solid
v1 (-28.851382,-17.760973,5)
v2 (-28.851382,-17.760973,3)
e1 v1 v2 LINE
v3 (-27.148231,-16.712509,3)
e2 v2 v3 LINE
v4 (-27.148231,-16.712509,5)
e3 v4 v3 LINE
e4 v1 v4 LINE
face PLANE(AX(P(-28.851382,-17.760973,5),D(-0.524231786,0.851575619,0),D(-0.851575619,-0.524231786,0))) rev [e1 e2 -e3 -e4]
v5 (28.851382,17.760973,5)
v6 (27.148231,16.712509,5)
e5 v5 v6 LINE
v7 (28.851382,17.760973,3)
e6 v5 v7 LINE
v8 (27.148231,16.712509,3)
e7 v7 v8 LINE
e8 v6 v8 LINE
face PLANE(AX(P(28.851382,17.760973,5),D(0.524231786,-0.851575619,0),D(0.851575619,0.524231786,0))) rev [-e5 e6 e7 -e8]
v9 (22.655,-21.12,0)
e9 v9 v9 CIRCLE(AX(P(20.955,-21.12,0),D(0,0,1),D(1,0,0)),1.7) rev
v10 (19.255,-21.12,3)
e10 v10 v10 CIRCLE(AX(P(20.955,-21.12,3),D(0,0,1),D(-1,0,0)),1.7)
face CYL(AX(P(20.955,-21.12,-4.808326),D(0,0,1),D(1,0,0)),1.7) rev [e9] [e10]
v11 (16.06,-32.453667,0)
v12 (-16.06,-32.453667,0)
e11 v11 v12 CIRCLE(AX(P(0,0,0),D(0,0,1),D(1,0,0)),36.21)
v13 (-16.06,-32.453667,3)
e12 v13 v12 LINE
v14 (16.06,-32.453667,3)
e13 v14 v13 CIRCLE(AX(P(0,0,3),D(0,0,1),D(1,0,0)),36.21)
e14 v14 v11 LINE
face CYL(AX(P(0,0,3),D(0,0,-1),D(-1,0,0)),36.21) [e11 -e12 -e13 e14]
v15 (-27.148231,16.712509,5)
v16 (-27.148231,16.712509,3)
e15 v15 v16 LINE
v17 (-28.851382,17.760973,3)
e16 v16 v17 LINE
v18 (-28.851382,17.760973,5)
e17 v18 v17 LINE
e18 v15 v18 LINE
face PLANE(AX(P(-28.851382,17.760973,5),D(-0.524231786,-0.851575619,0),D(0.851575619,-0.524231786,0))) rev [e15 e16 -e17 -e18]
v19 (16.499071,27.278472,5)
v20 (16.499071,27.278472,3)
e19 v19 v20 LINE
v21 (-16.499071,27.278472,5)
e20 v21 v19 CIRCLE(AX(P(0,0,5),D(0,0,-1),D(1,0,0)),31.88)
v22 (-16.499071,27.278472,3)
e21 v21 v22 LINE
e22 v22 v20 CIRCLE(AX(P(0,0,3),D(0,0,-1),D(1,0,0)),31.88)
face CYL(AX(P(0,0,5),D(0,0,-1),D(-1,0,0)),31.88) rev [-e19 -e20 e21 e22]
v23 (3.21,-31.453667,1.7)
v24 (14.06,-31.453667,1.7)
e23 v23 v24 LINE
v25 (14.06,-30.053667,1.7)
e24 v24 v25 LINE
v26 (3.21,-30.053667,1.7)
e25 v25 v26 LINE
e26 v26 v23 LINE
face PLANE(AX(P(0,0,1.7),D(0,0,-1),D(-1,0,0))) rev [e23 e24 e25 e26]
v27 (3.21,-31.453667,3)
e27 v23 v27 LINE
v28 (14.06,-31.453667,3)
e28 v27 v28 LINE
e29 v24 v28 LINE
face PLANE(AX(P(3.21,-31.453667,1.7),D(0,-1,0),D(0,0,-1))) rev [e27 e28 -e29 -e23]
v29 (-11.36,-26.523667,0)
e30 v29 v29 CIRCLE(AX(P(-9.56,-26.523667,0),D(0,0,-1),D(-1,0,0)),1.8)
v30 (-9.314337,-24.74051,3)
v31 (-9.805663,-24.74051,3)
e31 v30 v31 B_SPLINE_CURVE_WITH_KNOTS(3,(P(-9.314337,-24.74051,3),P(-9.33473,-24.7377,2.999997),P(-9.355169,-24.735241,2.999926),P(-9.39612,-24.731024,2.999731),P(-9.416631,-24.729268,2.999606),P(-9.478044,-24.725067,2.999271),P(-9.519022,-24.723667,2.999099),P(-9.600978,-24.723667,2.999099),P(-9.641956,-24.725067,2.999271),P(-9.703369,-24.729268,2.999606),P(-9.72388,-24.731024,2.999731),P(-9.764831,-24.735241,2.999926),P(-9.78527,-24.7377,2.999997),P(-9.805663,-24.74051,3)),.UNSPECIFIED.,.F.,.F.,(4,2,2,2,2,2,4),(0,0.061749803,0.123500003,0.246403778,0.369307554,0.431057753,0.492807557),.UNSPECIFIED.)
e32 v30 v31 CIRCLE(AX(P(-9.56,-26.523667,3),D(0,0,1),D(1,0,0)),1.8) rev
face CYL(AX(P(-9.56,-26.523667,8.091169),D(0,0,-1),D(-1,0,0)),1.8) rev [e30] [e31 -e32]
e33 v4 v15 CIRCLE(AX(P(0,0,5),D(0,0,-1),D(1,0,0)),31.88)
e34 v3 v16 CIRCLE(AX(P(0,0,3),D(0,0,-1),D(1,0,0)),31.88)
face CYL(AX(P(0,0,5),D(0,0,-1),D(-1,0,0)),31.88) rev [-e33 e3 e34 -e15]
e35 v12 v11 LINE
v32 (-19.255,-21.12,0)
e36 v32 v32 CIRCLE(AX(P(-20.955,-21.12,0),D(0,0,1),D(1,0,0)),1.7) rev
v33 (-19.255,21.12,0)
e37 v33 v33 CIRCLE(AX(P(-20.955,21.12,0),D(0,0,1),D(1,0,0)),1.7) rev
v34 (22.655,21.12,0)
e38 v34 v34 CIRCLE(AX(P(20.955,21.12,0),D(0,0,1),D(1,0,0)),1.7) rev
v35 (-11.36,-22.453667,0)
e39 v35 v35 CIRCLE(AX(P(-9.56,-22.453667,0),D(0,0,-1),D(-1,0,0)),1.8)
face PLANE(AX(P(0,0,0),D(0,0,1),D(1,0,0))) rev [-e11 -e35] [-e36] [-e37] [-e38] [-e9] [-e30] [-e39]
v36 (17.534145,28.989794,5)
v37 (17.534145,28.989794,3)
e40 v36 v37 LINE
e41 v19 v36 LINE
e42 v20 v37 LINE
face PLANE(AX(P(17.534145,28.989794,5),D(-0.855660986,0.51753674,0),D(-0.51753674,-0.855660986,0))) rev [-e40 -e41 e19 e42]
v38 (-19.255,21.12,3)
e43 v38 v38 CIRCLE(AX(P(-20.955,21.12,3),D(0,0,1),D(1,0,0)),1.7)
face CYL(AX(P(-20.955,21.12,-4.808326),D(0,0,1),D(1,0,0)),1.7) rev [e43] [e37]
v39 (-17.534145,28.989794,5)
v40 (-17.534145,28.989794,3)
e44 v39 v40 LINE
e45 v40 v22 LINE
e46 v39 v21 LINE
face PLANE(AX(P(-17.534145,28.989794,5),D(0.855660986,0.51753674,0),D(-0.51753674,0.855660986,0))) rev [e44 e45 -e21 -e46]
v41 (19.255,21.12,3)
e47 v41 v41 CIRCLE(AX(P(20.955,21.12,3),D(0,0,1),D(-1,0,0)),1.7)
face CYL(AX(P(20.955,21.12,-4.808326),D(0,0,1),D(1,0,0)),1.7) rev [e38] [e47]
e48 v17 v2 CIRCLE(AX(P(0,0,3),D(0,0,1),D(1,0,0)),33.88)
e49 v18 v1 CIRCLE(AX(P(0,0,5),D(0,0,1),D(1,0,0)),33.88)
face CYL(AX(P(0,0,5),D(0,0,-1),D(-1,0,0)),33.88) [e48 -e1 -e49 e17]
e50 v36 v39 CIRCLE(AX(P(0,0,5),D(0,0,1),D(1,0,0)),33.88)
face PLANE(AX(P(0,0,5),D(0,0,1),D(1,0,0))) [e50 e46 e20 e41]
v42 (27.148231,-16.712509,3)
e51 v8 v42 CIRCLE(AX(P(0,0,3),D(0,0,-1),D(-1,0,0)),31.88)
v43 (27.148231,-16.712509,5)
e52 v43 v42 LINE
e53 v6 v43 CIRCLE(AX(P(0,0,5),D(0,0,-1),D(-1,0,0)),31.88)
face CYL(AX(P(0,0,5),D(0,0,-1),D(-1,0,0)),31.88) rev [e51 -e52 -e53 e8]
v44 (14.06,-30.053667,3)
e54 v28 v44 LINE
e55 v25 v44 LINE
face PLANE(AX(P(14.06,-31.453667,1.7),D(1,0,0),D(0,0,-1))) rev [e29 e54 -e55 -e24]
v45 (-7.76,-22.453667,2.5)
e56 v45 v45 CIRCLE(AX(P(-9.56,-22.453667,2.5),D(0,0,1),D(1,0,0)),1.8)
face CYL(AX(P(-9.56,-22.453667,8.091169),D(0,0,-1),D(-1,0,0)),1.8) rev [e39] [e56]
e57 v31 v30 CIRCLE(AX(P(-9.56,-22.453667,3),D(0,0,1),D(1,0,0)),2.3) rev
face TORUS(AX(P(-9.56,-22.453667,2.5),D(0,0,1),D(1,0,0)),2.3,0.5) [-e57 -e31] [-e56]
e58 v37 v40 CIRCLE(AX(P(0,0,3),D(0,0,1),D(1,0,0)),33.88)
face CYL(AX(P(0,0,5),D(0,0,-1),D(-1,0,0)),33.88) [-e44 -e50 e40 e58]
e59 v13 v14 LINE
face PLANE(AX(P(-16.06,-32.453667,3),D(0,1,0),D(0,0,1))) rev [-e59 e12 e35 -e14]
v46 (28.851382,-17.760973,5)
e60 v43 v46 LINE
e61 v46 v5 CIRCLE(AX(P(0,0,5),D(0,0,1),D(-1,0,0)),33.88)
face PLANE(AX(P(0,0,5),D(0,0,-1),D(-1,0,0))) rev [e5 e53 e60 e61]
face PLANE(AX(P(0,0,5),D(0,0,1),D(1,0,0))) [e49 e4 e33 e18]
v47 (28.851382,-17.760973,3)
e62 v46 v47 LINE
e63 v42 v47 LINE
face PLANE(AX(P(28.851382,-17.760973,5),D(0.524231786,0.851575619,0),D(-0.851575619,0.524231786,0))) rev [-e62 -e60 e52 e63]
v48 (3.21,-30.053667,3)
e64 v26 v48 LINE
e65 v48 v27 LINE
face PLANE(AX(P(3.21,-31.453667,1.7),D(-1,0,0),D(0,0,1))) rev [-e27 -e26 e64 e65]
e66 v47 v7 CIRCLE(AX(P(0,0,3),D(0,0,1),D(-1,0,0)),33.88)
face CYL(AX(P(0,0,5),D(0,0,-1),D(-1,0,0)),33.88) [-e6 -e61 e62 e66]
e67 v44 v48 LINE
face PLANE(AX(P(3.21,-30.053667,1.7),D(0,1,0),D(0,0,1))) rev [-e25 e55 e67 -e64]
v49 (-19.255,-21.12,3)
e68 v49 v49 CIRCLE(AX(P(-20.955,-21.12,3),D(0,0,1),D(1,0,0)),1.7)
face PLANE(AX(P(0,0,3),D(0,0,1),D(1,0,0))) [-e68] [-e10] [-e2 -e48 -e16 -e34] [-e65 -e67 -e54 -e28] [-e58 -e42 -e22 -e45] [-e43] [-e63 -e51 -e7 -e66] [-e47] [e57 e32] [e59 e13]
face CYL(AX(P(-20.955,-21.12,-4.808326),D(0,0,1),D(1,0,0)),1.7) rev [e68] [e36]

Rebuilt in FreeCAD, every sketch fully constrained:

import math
import FreeCAD as App
import Part
import Sketcher
Q = App.Units.Quantity


def edges_at(feature, points):
    """Names of the edges that pass closest to the given points."""
    edges = feature.Shape.Edges
    near = lambda p: min(range(len(edges)), key=lambda i: edges[i].distToShape(Part.Vertex(*p))[0])
    return sorted({f"Edge{near(p) + 1}" for p in points})


def add_polygon(sketch, points):
    """Adds a closed chain of lines whose ends are joined by coincident constraints."""
    first, n = sketch.GeometryCount, len(points)
    for a, b in zip(points, points[1:] + points[:1]):
        sketch.addGeometry(Part.LineSegment(App.Vector(*a, 0), App.Vector(*b, 0)), False)
    for i in range(n):
        sketch.addConstraint(Sketcher.Constraint("Coincident", first + i, 2, first + (i + 1) % n, 1))

doc = App.newDocument("Part")
body = doc.addObject("PartDesign::Body", "Body")

# Sketch on XY plane
sketch1 = body.newObject("Sketcher::SketchObject", "Sketch")
sketch1.AttachmentSupport = (doc.getObject("XY_Plane"), [""])
sketch1.MapMode = "FlatFace"
sketch1.addGeometry([
    Part.LineSegment(App.Vector(-16.06, -32.453667, 0), App.Vector(16.06, -32.453667, 0)),
    Part.ArcOfCircle(Part.Circle(App.Vector(0, 0, 0), App.Vector(0, 0, 1), 36.21), math.radians(-63.671064), math.radians(243.671064)),
], False)
sketch1.addConstraint([
    Sketcher.Constraint("Coincident", 0, 1, 1, 2),
    Sketcher.Constraint("Coincident", 1, 1, 0, 2),
    Sketcher.Constraint("Horizontal", 0),
    Sketcher.Constraint("Coincident", 1, 3, -1, 1),
    Sketcher.Constraint("Radius", 1, Q("36.21 mm")),
    Sketcher.Constraint("DistanceX", 0, 1, 0, 2, Q("32.12 mm")),
])
pad1 = body.newObject("PartDesign::Pad", "Pad")
pad1.Profile = sketch1
pad1.Length = 3

# Sketch on XY plane
sketch2 = body.newObject("Sketcher::SketchObject", "Sketch001")
sketch2.AttachmentSupport = (doc.getObject("XY_Plane"), [""])
sketch2.MapMode = "FlatFace"
sketch2.AttachmentOffset = App.Placement(App.Vector(0, 0, 3), App.Rotation())
sketch2.addGeometry([
    Part.Circle(App.Vector(-20.955, 21.12, 0), App.Vector(0, 0, 1), 1.7),
    Part.Circle(App.Vector(20.955, 21.12, 0), App.Vector(0, 0, 1), 1.7),
    Part.Circle(App.Vector(-20.955, -21.12, 0), App.Vector(0, 0, 1), 1.7),
    Part.Circle(App.Vector(20.955, -21.12, 0), App.Vector(0, 0, 1), 1.7),
], False)
sketch2.addConstraint([
    Sketcher.Constraint("Equal", 0, 1),
    Sketcher.Constraint("Equal", 1, 2),
    Sketcher.Constraint("Equal", 2, 3),
    Sketcher.Constraint("Symmetric", 1, 3, 2, 3, -1, 1),
    Sketcher.Constraint("Symmetric", 0, 3, 3, 3, -1, 1),
    Sketcher.Constraint("Symmetric", 0, 3, 1, 3, -2),
    Sketcher.Constraint("Diameter", 0, Q("3.4 mm")),
    Sketcher.Constraint("DistanceY", -1, 1, 0, 3, Q("21.12 mm")),
    Sketcher.Constraint("DistanceX", 0, 3, 1, 3, Q("41.91 mm")),
])
pocket1 = body.newObject("PartDesign::Pocket", "Pocket")
pocket1.Profile = sketch2
pocket1.Length = 3

# Sketch on XY plane
sketch3 = body.newObject("Sketcher::SketchObject", "Sketch002")
sketch3.AttachmentSupport = (doc.getObject("XY_Plane"), [""])
sketch3.MapMode = "FlatFace"
sketch3.AttachmentOffset = App.Placement(App.Vector(0, 0, 3), App.Rotation())
sketch3.addGeometry([
    Part.LineSegment(App.Vector(-17.534145, 28.989794, 0), App.Vector(-16.499071, 27.278472, 0)),  # 0
    Part.ArcOfCircle(Part.Circle(App.Vector(0, 0, 0), App.Vector(0, 0, 1), 31.88), math.radians(58.832835), math.radians(121.167165)),  # 1
    Part.LineSegment(App.Vector(16.499071, 27.278472, 0), App.Vector(17.534145, 28.989794, 0)),  # 2
    Part.ArcOfCircle(Part.Circle(App.Vector(0, 0, 0), App.Vector(0, 0, 1), 33.88), math.radians(58.832835), math.radians(121.167165)),  # 3
    Part.LineSegment(App.Vector(-27.148231, 16.712509, 0), App.Vector(-28.851382, 17.760973, 0)),  # 4
    Part.ArcOfCircle(Part.Circle(App.Vector(0, 0, 0), App.Vector(0, 0, 1), 33.88), math.radians(148.383458), math.radians(211.616542)),  # 5
    Part.LineSegment(App.Vector(-28.851382, -17.760973, 0), App.Vector(-27.148231, -16.712509, 0)),  # 6
    Part.ArcOfCircle(Part.Circle(App.Vector(0, 0, 0), App.Vector(0, 0, 1), 31.88), math.radians(148.383458), math.radians(211.616542)),  # 7
    Part.LineSegment(App.Vector(28.851382, 17.760973, 0), App.Vector(27.148231, 16.712509, 0)),  # 8
    Part.ArcOfCircle(Part.Circle(App.Vector(0, 0, 0), App.Vector(0, 0, 1), 31.88), math.radians(-31.616542), math.radians(31.616542)),  # 9
    Part.LineSegment(App.Vector(27.148231, -16.712509, 0), App.Vector(28.851382, -17.760973, 0)),  # 10
    Part.ArcOfCircle(Part.Circle(App.Vector(0, 0, 0), App.Vector(0, 0, 1), 33.88), math.radians(-31.616542), math.radians(31.616542)),  # 11
], False)
sketch3.addConstraint([
    Sketcher.Constraint("Coincident", 0, 2, 1, 2),
    Sketcher.Constraint("Coincident", 1, 1, 2, 1),
    Sketcher.Constraint("Coincident", 2, 2, 3, 1),
    Sketcher.Constraint("Coincident", 3, 2, 0, 1),
    Sketcher.Constraint("Coincident", 4, 2, 5, 1),
    Sketcher.Constraint("Coincident", 5, 2, 6, 1),
    Sketcher.Constraint("Coincident", 6, 2, 7, 2),
    Sketcher.Constraint("Coincident", 7, 1, 4, 1),
    Sketcher.Constraint("Coincident", 8, 2, 9, 2),
    Sketcher.Constraint("Coincident", 9, 1, 10, 1),
    Sketcher.Constraint("Coincident", 10, 2, 11, 1),
    Sketcher.Constraint("Coincident", 11, 2, 8, 1),
    Sketcher.Constraint("Coincident", 1, 3, -1, 1),
    Sketcher.Constraint("Coincident", 3, 3, -1, 1),
    Sketcher.Constraint("Coincident", 5, 3, -1, 1),
    Sketcher.Constraint("Coincident", 7, 3, -1, 1),
    Sketcher.Constraint("Coincident", 9, 3, -1, 1),
    Sketcher.Constraint("Coincident", 11, 3, -1, 1),
    Sketcher.Constraint("Equal", 3, 5),
    Sketcher.Constraint("Equal", 1, 7),
    Sketcher.Constraint("Equal", 7, 9),
    Sketcher.Constraint("Equal", 5, 11),
    Sketcher.Constraint("Parallel", 6, 8),
    Sketcher.Constraint("Parallel", 4, 10),
    Sketcher.Constraint("Horizontal", 0, 2, 1, 1),
    Sketcher.Constraint("Horizontal", 2, 2, 3, 2),
    Sketcher.Constraint("Horizontal", 7, 1, 8, 2),
    Sketcher.Constraint("Horizontal", 6, 2, 9, 1),
    Sketcher.Constraint("Horizontal", 5, 2, 10, 2),
    Sketcher.Constraint("Vertical", 4, 2, 5, 2),
    Sketcher.Constraint("Radius", 1, Q("31.88 mm")),
    Sketcher.Constraint("Radius", 3, Q("33.88 mm")),
    Sketcher.Constraint("DistanceY", 4, 2, 0, 2, Q("9.517499 mm")),
    Sketcher.Constraint("DistanceX", 0, 2, -1, 1, Q("16.499071 mm")),
    Sketcher.Constraint("DistanceX", 6, 2, -1, 1, Q("27.148231 mm")),
    Sketcher.Constraint("DistanceY", 1, 1, 2, 2, Q("1.711322 mm")),
])
pad2 = body.newObject("PartDesign::Pad", "Pad001")
pad2.Profile = sketch3
pad2.Length = 2

# Sketch on XY plane
sketch4 = body.newObject("Sketcher::SketchObject", "Sketch003")
sketch4.AttachmentSupport = (doc.getObject("XY_Plane"), [""])
sketch4.MapMode = "FlatFace"
sketch4.addGeometry([
    Part.Circle(App.Vector(-9.56, -22.453667, 0), App.Vector(0, 0, 1), 1.8),
    Part.Circle(App.Vector(-9.56, -26.523667, 0), App.Vector(0, 0, 1), 1.8),
], False)
sketch4.addConstraint([
    Sketcher.Constraint("Equal", 0, 1),
    Sketcher.Constraint("Vertical", 0, 3, 1, 3),
    Sketcher.Constraint("Diameter", 0, Q("3.6 mm")),
    Sketcher.Constraint("DistanceX", 0, 3, -1, 1, Q("9.56 mm")),
    Sketcher.Constraint("DistanceY", 1, 3, 0, 3, Q("4.07 mm")),
    Sketcher.Constraint("DistanceY", 0, 3, -1, 1, Q("22.453667 mm")),
])
pocket2 = body.newObject("PartDesign::Pocket", "Pocket001")
pocket2.Profile = sketch4
pocket2.Length = 3
pocket2.Reversed = True

# Sketch on XY plane
sketch5 = body.newObject("Sketcher::SketchObject", "Sketch004")
sketch5.AttachmentSupport = (doc.getObject("XY_Plane"), [""])
sketch5.MapMode = "FlatFace"
sketch5.AttachmentOffset = App.Placement(App.Vector(0, 0, 3), App.Rotation())
add_polygon(sketch5, [(3.21, -30.053667), (3.21, -31.453667), (14.06, -31.453667), (14.06, -30.053667)])  # lines 0-3
sketch5.addConstraint([
    Sketcher.Constraint("Vertical", 0),
    Sketcher.Constraint("Horizontal", 1),
    Sketcher.Constraint("Vertical", 2),
    Sketcher.Constraint("Horizontal", 3),
    Sketcher.Constraint("DistanceY", 0, 2, 0, 1, Q("1.4 mm")),
    Sketcher.Constraint("DistanceX", 1, 1, 1, 2, Q("10.85 mm")),
    Sketcher.Constraint("DistanceX", -1, 1, 0, 2, Q("3.21 mm")),
    Sketcher.Constraint("DistanceY", 0, 2, -1, 1, Q("31.453667 mm")),
])
pocket3 = body.newObject("PartDesign::Pocket", "Pocket002")
pocket3.Profile = sketch5
pocket3.Length = 1.3
doc.recompute()

fillet = body.newObject("PartDesign::Fillet", "Fillet")
fillet.Base = (pocket3, edges_at(pocket3, [(-7.76, -22.454, 3)]))
fillet.Radius = 0.5

doc.recompute()
